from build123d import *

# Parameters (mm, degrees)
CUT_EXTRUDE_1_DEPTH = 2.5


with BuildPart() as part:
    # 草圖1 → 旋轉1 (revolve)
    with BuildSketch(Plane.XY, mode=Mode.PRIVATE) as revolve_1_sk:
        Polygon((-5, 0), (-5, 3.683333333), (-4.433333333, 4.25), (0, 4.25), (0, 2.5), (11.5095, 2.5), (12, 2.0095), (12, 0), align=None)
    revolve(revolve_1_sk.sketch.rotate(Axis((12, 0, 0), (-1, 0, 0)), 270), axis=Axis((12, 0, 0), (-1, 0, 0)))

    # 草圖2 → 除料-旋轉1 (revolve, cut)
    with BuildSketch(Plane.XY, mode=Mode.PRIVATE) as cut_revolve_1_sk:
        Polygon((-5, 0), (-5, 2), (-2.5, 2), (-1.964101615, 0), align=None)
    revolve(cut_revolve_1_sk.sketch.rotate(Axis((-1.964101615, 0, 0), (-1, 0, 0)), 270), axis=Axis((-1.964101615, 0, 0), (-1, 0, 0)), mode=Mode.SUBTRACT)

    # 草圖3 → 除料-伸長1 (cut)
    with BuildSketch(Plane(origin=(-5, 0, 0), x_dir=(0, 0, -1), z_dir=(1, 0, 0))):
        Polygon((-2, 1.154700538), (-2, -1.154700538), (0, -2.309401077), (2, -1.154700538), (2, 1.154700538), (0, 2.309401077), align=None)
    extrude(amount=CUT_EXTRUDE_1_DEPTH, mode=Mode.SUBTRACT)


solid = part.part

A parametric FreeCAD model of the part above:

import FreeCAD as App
import Part
import Sketcher
Q = App.Units.Quantity

doc = App.newDocument("Part")
params = doc.addObject("Spreadsheet::Sheet", "Params")
for row, (alias, value) in enumerate([
    ("sketch1_width", "17 mm"),
    ("sketch1_height", "1.75 mm"),
    ("revolution_angle", "360 deg"),
    ("sketch2_height", "2 mm"),
    ("sketch2_width", "2.5 mm"),
    ("groove_angle", "360 deg"),
    ("pocket1_length", "2.5 mm"),
], start=1):
    params.set(f"A{row}", alias)
    params.set(f"B{row}", "=" + value)
    params.setAlias(f"B{row}", alias)

body = doc.addObject("PartDesign::Body", "Body")

# Sketch on XY plane
sketch1 = body.newObject("Sketcher::SketchObject", "Sketch")
sketch1.AttachmentSupport = (doc.getObject("XY_Plane"), [""])
sketch1.MapMode = "FlatFace"
sketch1.addGeometry([
    Part.LineSegment(App.Vector(-5, 3.7, 0), App.Vector(-5, 0, 0)),  # 0
    Part.LineSegment(App.Vector(-5, 0, 0), App.Vector(12, 0, 0)),  # 1
    Part.LineSegment(App.Vector(12, 0, 0), App.Vector(12, 2, 0)),  # 2
    Part.LineSegment(App.Vector(12, 2, 0), App.Vector(11.5, 2.5, 0)),  # 3
    Part.LineSegment(App.Vector(11.5, 2.5, 0), App.Vector(0, 2.5, 0)),  # 4
    Part.LineSegment(App.Vector(0, 2.5, 0), App.Vector(0, 4.2, 0)),  # 5
    Part.LineSegment(App.Vector(0, 4.2, 0), App.Vector(-4.4, 4.2, 0)),  # 6
    Part.LineSegment(App.Vector(-4.4, 4.2, 0), App.Vector(-5, 3.7, 0)),  # 7
], False)
sketch1.addConstraint([
    Sketcher.Constraint("Coincident", 0, 2, 1, 1),
    Sketcher.Constraint("Coincident", 1, 2, 2, 1),
    Sketcher.Constraint("Coincident", 2, 2, 3, 1),
    Sketcher.Constraint("Coincident", 3, 2, 4, 1),
    Sketcher.Constraint("Coincident", 4, 2, 5, 1),
    Sketcher.Constraint("Coincident", 5, 2, 6, 1),
    Sketcher.Constraint("Coincident", 6, 2, 7, 1),
    Sketcher.Constraint("Coincident", 7, 2, 0, 1),
    Sketcher.Constraint("Vertical", 0),
    Sketcher.Constraint("Horizontal", 1),
    Sketcher.Constraint("Vertical", 2),
    Sketcher.Constraint("Horizontal", 4),
    Sketcher.Constraint("Vertical", 5),
    Sketcher.Constraint("Horizontal", 6),
    Sketcher.Constraint("PointOnObject", 0, 2, -1),
    Sketcher.Constraint("PointOnObject", 4, 2, -2),
    Sketcher.Constraint("Perpendicular", 3, 7),
    Sketcher.Constraint("DistanceX", 1, 1, 1, 2, Q("17 mm")),
    Sketcher.Constraint("Angle", 3, Q("135 deg")),
    Sketcher.Constraint("DistanceX", 0, 2, -1, 1, Q("5 mm")),
    Sketcher.Constraint("DistanceY", 5, 1, 5, 2, Q("1.75 mm")),
    Sketcher.Constraint("DistanceY", -1, 1, 3, 2, Q("2.5 mm")),
    Sketcher.Constraint("DistanceX", 4, 2, 4, 1, Q("11.5095 mm")),
    Sketcher.Constraint("DistanceX", 6, 2, 6, 1, Q("4.433333 mm")),
])
sketch1.setExpression("Constraints[17]", "Params.sketch1_width")
sketch1.setExpression("Constraints[20]", "Params.sketch1_height")
revolution = body.newObject("PartDesign::Revolution", "Revolution")
revolution.Profile = sketch1
revolution.ReferenceAxis = (sketch1, ["H_Axis"])
revolution.setExpression("Angle", "Params.revolution_angle")

# Sketch on XY plane
sketch2 = body.newObject("Sketcher::SketchObject", "Sketch001")
sketch2.AttachmentSupport = (doc.getObject("XY_Plane"), [""])
sketch2.MapMode = "FlatFace"
sketch2.addGeometry([
    Part.LineSegment(App.Vector(-5, 2, 0), App.Vector(-5, 0, 0)),
    Part.LineSegment(App.Vector(-5, 0, 0), App.Vector(-2, 0, 0)),
    Part.LineSegment(App.Vector(-2, 0, 0), App.Vector(-2.5, 2, 0)),
    Part.LineSegment(App.Vector(-2.5, 2, 0), App.Vector(-5, 2, 0)),
], False)
sketch2.addConstraint([
    Sketcher.Constraint("Coincident", 0, 2, 1, 1),
    Sketcher.Constraint("Coincident", 1, 2, 2, 1),
    Sketcher.Constraint("Coincident", 2, 2, 3, 1),
    Sketcher.Constraint("Coincident", 3, 2, 0, 1),
    Sketcher.Constraint("Vertical", 0),
    Sketcher.Constraint("Horizontal", 1),
    Sketcher.Constraint("Horizontal", 3),
    Sketcher.Constraint("PointOnObject", 0, 2, -1),
    Sketcher.Constraint("DistanceY", 0, 2, 0, 1, Q("2 mm")),
    Sketcher.Constraint("Angle", 2, Q("105 deg")),
    Sketcher.Constraint("DistanceX", 3, 2, 3, 1, Q("2.5 mm")),
    Sketcher.Constraint("DistanceX", 0, 2, -1, 1, Q("5 mm")),
])
sketch2.setExpression("Constraints[8]", "Params.sketch2_height")
sketch2.setExpression("Constraints[10]", "Params.sketch2_width")
groove = body.newObject("PartDesign::Groove", "Groove")
groove.Profile = sketch2
groove.ReferenceAxis = (sketch2, ["H_Axis"])
groove.setExpression("Angle", "Params.groove_angle")

# Sketch on YZ plane
sketch3 = body.newObject("Sketcher::SketchObject", "Sketch002")
sketch3.AttachmentSupport = (doc.getObject("YZ_Plane"), [""])
sketch3.MapMode = "FlatFace"
sketch3.AttachmentOffset = App.Placement(App.Vector(0, 0, -5), App.Rotation())
sketch3.addGeometry([
    Part.LineSegment(App.Vector(1.2, 2, 0), App.Vector(-1.2, 2, 0)),  # 0
    Part.LineSegment(App.Vector(-1.2, 2, 0), App.Vector(-2.3, 0, 0)),  # 1
    Part.LineSegment(App.Vector(-2.3, 0, 0), App.Vector(-1.2, -2, 0)),  # 2
    Part.LineSegment(App.Vector(-1.2, -2, 0), App.Vector(1.2, -2, 0)),  # 3
    Part.LineSegment(App.Vector(1.2, -2, 0), App.Vector(2.3, 0, 0)),  # 4
    Part.LineSegment(App.Vector(2.3, 0, 0), App.Vector(1.2, 2, 0)),  # 5
], False)
sketch3.addConstraint([
    Sketcher.Constraint("Coincident", 0, 2, 1, 1),
    Sketcher.Constraint("Coincident", 1, 2, 2, 1),
    Sketcher.Constraint("Coincident", 2, 2, 3, 1),
    Sketcher.Constraint("Coincident", 3, 2, 4, 1),
    Sketcher.Constraint("Coincident", 4, 2, 5, 1),
    Sketcher.Constraint("Coincident", 5, 2, 0, 1),
    Sketcher.Constraint("Horizontal", 0),
    Sketcher.Constraint("Horizontal", 3),
    Sketcher.Constraint("Symmetric", 0, 2, 3, 2, -1, 1),
    Sketcher.Constraint("Symmetric", 1, 2, 4, 2, -1, 1),
    Sketcher.Constraint("PointOnObject", 1, 2, -1),
    Sketcher.Constraint("Parallel", 2, 5),
    Sketcher.Constraint("Vertical", 0, 2, 2, 2),
    Sketcher.Constraint("Angle", 1, Q("-120 deg")),
    Sketcher.Constraint("DistanceY", -1, 1, 0, 2, Q("2 mm")),
    Sketcher.Constraint("DistanceX", 0, 2, 0, 1, Q("2.309401 mm")),
])
pocket1 = body.newObject("PartDesign::Pocket", "Pocket")
pocket1.Profile = sketch3
pocket1.setExpression("Length", "Params.pocket1_length")
pocket1.Reversed = True

doc.recompute()
